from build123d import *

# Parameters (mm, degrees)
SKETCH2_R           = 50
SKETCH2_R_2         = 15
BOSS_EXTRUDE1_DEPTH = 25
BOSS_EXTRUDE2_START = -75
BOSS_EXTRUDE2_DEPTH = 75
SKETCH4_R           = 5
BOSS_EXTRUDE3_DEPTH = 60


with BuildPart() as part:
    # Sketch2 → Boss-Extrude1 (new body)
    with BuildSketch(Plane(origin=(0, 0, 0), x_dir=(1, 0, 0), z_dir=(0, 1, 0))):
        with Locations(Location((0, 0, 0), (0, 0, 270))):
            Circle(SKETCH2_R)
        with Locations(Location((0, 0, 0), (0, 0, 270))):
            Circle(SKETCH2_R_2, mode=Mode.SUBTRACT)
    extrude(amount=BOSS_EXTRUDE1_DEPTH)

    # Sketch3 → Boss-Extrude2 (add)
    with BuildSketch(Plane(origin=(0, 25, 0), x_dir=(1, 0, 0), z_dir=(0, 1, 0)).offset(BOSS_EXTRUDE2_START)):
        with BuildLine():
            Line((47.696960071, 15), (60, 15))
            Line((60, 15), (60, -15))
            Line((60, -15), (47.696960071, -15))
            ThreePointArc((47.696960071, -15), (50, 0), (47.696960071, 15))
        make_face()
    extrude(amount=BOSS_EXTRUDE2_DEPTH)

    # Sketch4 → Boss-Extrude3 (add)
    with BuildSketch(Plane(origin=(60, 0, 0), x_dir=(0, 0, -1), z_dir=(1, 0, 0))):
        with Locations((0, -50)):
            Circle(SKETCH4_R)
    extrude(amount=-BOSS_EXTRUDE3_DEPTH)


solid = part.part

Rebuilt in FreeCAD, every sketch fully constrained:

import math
import FreeCAD as App
import Part
import Sketcher

V = App.Vector
Q = App.Units.Quantity

doc = App.newDocument("Part")
body = doc.addObject("PartDesign::Body", "Body")

sketch1 = body.newObject("Sketcher::SketchObject", "Sketch")
sketch1.AttachmentSupport = (doc.getObject("XZ_Plane"), [""])
sketch1.MapMode = "FlatFace"
sketch1.addGeometry(Part.Circle(V(0, 0, 0), V(0, 0, 1), 50), False)
sketch1.addGeometry(Part.Circle(V(0, 0, 0), V(0, 0, 1), 15), False)
sketch1.addConstraint(Sketcher.Constraint("Coincident", 0, 3, -1, 1))
sketch1.addConstraint(Sketcher.Constraint("Coincident", 1, 3, -1, 1))
sketch1.addConstraint(Sketcher.Constraint("Diameter", 0, Q("100 mm")))
sketch1.addConstraint(Sketcher.Constraint("Diameter", 1, Q("30 mm")))
pad1 = body.newObject("PartDesign::Pad", "Pad")
pad1.Profile = sketch1
pad1.Length = 25
pad1.Reversed = True

sketch2 = body.newObject("Sketcher::SketchObject", "Sketch001")
sketch2.AttachmentSupport = (doc.getObject("XZ_Plane"), [""])
sketch2.MapMode = "FlatFace"
sketch2.AttachmentOffset = App.Placement(V(0, 0, 50), App.Rotation())
sketch2.addGeometry(Part.LineSegment(V(60, -15, 0), V(47.69696, -15, 0)), False)
sketch2.addGeometry(Part.ArcOfCircle(Part.Circle(V(0, 0, 0), V(0, 0, 1), 50), math.radians(-17.457603), math.radians(17.457603)), False)
sketch2.addGeometry(Part.LineSegment(V(47.69696, 15, 0), V(60, 15, 0)), False)
sketch2.addGeometry(Part.LineSegment(V(60, 15, 0), V(60, -15, 0)), False)
sketch2.addConstraint(Sketcher.Constraint("Coincident", 0, 2, 1, 1))
sketch2.addConstraint(Sketcher.Constraint("Coincident", 1, 2, 2, 1))
sketch2.addConstraint(Sketcher.Constraint("Coincident", 2, 2, 3, 1))
sketch2.addConstraint(Sketcher.Constraint("Coincident", 3, 2, 0, 1))
sketch2.addConstraint(Sketcher.Constraint("Horizontal", 0))
sketch2.addConstraint(Sketcher.Constraint("Horizontal", 2))
sketch2.addConstraint(Sketcher.Constraint("Vertical", 3))
sketch2.addConstraint(Sketcher.Constraint("Coincident", 1, 3, -1, 1))
sketch2.addConstraint(Sketcher.Constraint("Vertical", 0, 2, 1, 2))
sketch2.addConstraint(Sketcher.Constraint("Radius", 1, Q("50 mm")))
sketch2.addConstraint(Sketcher.Constraint("DistanceY", 3, 2, 3, 1, Q("30 mm")))
sketch2.addConstraint(Sketcher.Constraint("DistanceX", -1, 1, 2, 2, Q("60 mm")))
pad2 = body.newObject("PartDesign::Pad", "Pad001")
pad2.Profile = sketch2
pad2.Length = 75
pad2.Reversed = True

sketch3 = body.newObject("Sketcher::SketchObject", "Sketch002")
sketch3.AttachmentSupport = (doc.getObject("YZ_Plane"), [""])
sketch3.MapMode = "FlatFace"
sketch3.AttachmentOffset = App.Placement(V(0, 0, 60), App.Rotation())
sketch3.addGeometry(Part.Circle(V(-50, 0, 0), V(0, 0, 1), 5), False)
sketch3.addConstraint(Sketcher.Constraint("PointOnObject", 0, 3, -1))
sketch3.addConstraint(Sketcher.Constraint("Diameter", 0, Q("10 mm")))
sketch3.addConstraint(Sketcher.Constraint("DistanceX", 0, 3, -1, 1, Q("50 mm")))
pad3 = body.newObject("PartDesign::Pad", "Pad002")
pad3.Profile = sketch3
pad3.Length = 60
pad3.Reversed = True

doc.recompute()
